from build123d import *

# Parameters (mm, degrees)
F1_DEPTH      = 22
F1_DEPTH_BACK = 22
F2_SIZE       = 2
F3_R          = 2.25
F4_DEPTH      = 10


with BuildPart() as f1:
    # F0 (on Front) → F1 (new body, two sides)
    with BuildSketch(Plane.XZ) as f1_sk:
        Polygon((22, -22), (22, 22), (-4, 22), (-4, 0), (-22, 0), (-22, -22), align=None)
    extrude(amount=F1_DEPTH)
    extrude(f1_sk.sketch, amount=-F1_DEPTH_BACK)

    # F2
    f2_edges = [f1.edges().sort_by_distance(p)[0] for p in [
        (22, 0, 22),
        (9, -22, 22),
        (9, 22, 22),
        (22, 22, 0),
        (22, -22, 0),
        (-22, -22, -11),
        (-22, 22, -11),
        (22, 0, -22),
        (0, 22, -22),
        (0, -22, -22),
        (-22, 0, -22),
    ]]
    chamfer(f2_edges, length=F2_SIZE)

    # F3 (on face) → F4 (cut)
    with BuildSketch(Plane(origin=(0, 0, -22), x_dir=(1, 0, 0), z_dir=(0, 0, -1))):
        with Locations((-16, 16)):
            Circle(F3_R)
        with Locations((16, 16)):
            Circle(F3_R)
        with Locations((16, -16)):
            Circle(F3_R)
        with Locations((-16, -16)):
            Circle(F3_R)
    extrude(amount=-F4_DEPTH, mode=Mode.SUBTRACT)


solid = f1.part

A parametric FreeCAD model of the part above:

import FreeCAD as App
import Part
import Sketcher

V = App.Vector


def edges_at(feature, points):
    """Names of the edges that pass closest to the given points."""
    edges = feature.Shape.Edges
    near = lambda p: min(range(len(edges)), key=lambda i: edges[i].distToShape(Part.Vertex(*p))[0])
    return sorted({f"Edge{near(p) + 1}" for p in points})


def add_polygon(sketch, points):
    """Adds a closed chain of lines whose ends are joined by coincident constraints."""
    first, n = sketch.GeometryCount, len(points)
    for a, b in zip(points, points[1:] + points[:1]):
        sketch.addGeometry(Part.LineSegment(App.Vector(*a, 0), App.Vector(*b, 0)), False)
    for i in range(n):
        sketch.addConstraint(Sketcher.Constraint("Coincident", first + i, 2, first + (i + 1) % n, 1))

doc = App.newDocument("Part")
body = doc.addObject("PartDesign::Body", "Body")

# Sketch on XZ plane
sketch1 = doc.addObject("Sketcher::SketchObject", "Sketch")
body.addObject(sketch1)
sketch1.AttachmentSupport = (doc.XZ_Plane, [""])
sketch1.MapMode = "FlatFace"
add_polygon(sketch1, [(22, -22), (22, 22), (-4, 22), (-4, 0), (-22, 0), (-22, -22)])  # lines 0-5
sketch1.addConstraint(Sketcher.Constraint("Vertical", 0))
sketch1.addConstraint(Sketcher.Constraint("Horizontal", 1))
sketch1.addConstraint(Sketcher.Constraint("Vertical", 2))
sketch1.addConstraint(Sketcher.Constraint("Horizontal", 3))
sketch1.addConstraint(Sketcher.Constraint("Vertical", 4))
sketch1.addConstraint(Sketcher.Constraint("Horizontal", 5))
sketch1.addConstraint(Sketcher.Constraint("Symmetric", 0, 2, 4, 2, -1, 1))
sketch1.addConstraint(Sketcher.Constraint("PointOnObject", 2, 2, -1))
sketch1.addConstraint(Sketcher.Constraint("Equal", 5, 0))
sketch1.addConstraint(Sketcher.Constraint("DistanceX", 1, 2, 1, 1, 26.0))
sketch1.addConstraint(Sketcher.Constraint("DistanceX", 3, 2, 3, 1, 18.0))
pad1 = doc.addObject("PartDesign::Pad", "Pad")
body.addObject(pad1)
pad1.Profile = sketch1
pad1.Type = "TwoLengths"
pad1.Length = 22
pad1.Length2 = 22
doc.recompute()

chamfer = doc.addObject("PartDesign::Chamfer", "Chamfer")
body.addObject(chamfer)
chamfer.Base = (pad1, edges_at(pad1, [
    (22, 0, 22),
    (9, -22, 22),
    (9, 22, 22),
    (22, 22, 0),
    (22, -22, 0),
    (-22, -22, -11),
    (-22, 22, -11),
    (22, 0, -22),
    (0, 22, -22),
    (0, -22, -22),
    (-22, 0, -22),
]))
chamfer.Size = 2

# Sketch on XY plane
sketch2 = doc.addObject("Sketcher::SketchObject", "Sketch001")
body.addObject(sketch2)
sketch2.AttachmentSupport = (doc.XY_Plane, [""])
sketch2.MapMode = "FlatFace"
sketch2.AttachmentOffset = App.Placement(V(0, 0, -22), App.Rotation())
sketch2.addGeometry(Part.Circle(V(-16, -16, 0), V(0, 0, 1), 2.2), False)
sketch2.addGeometry(Part.Circle(V(16, -16, 0), V(0, 0, 1), 2.2), False)
sketch2.addGeometry(Part.Circle(V(16, 16, 0), V(0, 0, 1), 2.2), False)
sketch2.addGeometry(Part.Circle(V(-16, 16, 0), V(0, 0, 1), 2.2), False)
sketch2.addConstraint(Sketcher.Constraint("Equal", 0, 1))
sketch2.addConstraint(Sketcher.Constraint("Equal", 1, 2))
sketch2.addConstraint(Sketcher.Constraint("Equal", 2, 3))
sketch2.addConstraint(Sketcher.Constraint("Symmetric", 0, 3, 2, 3, -1, 1))
sketch2.addConstraint(Sketcher.Constraint("Symmetric", 1, 3, 3, 3, -1, 1))
sketch2.addConstraint(Sketcher.Constraint("Symmetric", 0, 3, 1, 3, -2))
sketch2.addConstraint(Sketcher.Constraint("Diameter", 0, 4.5))
sketch2.addConstraint(Sketcher.Constraint("DistanceX", 0, 3, -1, 1, 16.0))
sketch2.addConstraint(Sketcher.Constraint("DistanceY", 0, 3, -1, 1, 16.0))
pocket1 = doc.addObject("PartDesign::Pocket", "Pocket")
body.addObject(pocket1)
pocket1.Profile = sketch2
pocket1.Length = 10
pocket1.Reversed = True

doc.recompute()
